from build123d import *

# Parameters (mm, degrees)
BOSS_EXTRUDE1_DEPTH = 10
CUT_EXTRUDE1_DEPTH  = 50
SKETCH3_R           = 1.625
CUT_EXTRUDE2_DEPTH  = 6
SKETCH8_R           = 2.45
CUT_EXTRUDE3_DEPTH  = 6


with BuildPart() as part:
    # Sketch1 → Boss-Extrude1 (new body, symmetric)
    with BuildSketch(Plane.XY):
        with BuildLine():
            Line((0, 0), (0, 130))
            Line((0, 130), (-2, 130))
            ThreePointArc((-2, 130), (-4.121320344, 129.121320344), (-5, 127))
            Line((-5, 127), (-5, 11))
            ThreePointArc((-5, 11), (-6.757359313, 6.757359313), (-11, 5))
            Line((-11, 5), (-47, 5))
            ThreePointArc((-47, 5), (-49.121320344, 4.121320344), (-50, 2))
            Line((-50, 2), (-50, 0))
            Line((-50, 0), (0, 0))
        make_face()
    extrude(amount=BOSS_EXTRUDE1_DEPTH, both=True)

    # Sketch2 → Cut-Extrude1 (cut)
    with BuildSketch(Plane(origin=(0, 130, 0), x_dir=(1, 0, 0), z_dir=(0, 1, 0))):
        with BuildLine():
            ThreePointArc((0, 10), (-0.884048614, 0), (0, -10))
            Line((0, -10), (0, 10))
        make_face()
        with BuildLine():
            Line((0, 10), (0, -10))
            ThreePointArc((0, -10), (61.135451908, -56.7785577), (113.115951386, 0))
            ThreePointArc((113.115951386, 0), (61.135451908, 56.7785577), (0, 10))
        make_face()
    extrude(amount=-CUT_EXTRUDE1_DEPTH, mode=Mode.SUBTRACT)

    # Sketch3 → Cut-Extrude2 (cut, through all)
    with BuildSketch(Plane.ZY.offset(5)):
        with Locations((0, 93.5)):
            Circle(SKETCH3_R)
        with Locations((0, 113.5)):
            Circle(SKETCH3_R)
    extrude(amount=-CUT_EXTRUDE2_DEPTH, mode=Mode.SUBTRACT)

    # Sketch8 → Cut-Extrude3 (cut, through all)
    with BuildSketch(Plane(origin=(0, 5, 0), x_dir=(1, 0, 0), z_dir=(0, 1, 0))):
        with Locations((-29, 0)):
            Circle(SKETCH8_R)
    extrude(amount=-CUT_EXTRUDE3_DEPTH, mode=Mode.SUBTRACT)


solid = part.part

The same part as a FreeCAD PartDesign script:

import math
import FreeCAD as App
import Part
import Sketcher
Q = App.Units.Quantity

doc = App.newDocument("Part")
body = doc.addObject("PartDesign::Body", "Body")

sketch1 = body.newObject("Sketcher::SketchObject", "Sketch")
sketch1.AttachmentSupport = (doc.getObject("XY_Plane"), [""])
sketch1.MapMode = "FlatFace"
sketch1.addGeometry([
    Part.LineSegment(App.Vector(0, 0, 0), App.Vector(0, 130, 0)),
    Part.LineSegment(App.Vector(0, 130, 0), App.Vector(-2, 130, 0)),
    Part.ArcOfCircle(Part.Circle(App.Vector(-2, 127, 0), App.Vector(0, 0, 1), 3), math.radians(90), math.radians(180)),
    Part.LineSegment(App.Vector(-5, 127, 0), App.Vector(-5, 11, 0)),
    Part.ArcOfCircle(Part.Circle(App.Vector(-11, 11, 0), App.Vector(0, 0, 1), 6), math.radians(-90), math.radians(0)),
    Part.LineSegment(App.Vector(-11, 5, 0), App.Vector(-47, 5, 0)),
    Part.ArcOfCircle(Part.Circle(App.Vector(-47, 2, 0), App.Vector(0, 0, 1), 3), math.radians(90), math.radians(180)),
    Part.LineSegment(App.Vector(-50, 2, 0), App.Vector(-50, 0, 0)),
    Part.LineSegment(App.Vector(-50, 0, 0), App.Vector(0, 0, 0)),
], False)
sketch1.addConstraint([
    Sketcher.Constraint("Coincident", 0, 2, 1, 1),
    Sketcher.Constraint("Tangent", 1, 2, 2, 1),
    Sketcher.Constraint("Tangent", 2, 2, 3, 1),
    Sketcher.Constraint("Tangent", 3, 2, 4, 2),
    Sketcher.Constraint("Tangent", 4, 1, 5, 1),
    Sketcher.Constraint("Tangent", 5, 2, 6, 1),
    Sketcher.Constraint("Tangent", 6, 2, 7, 1),
    Sketcher.Constraint("Coincident", 7, 2, 8, 1),
    Sketcher.Constraint("Coincident", 8, 2, 0, 1),
    Sketcher.Constraint("Vertical", 0),
    Sketcher.Constraint("Horizontal", 1),
    Sketcher.Constraint("Vertical", 3),
    Sketcher.Constraint("Horizontal", 5),
    Sketcher.Constraint("Vertical", 7),
    Sketcher.Constraint("Horizontal", 8),
    Sketcher.Constraint("Coincident", 8, 2, -1, 1),
    Sketcher.Constraint("Equal", 2, 6),
    Sketcher.Constraint("Equal", 1, 7),
    Sketcher.Constraint("Radius", 2, Q("3 mm")),
    Sketcher.Constraint("Radius", 4, Q("6 mm")),
    Sketcher.Constraint("DistanceX", 1, 2, 1, 1, Q("2 mm")),
    Sketcher.Constraint("DistanceX", 5, 2, 5, 1, Q("36 mm")),
    Sketcher.Constraint("DistanceY", 0, 1, 0, 2, Q("130 mm")),
])
pad1 = body.newObject("PartDesign::Pad", "Pad")
pad1.Profile = sketch1
pad1.Length = 20
pad1.Midplane = True

sketch2 = body.newObject("Sketcher::SketchObject", "Sketch001")
sketch2.AttachmentSupport = (doc.getObject("XZ_Plane"), [""])
sketch2.MapMode = "FlatFace"
sketch2.AttachmentOffset = App.Placement(App.Vector(0, 0, -130), App.Rotation())
sketch2.addGeometry([
    Part.ArcOfCircle(Part.Circle(App.Vector(56.115951, 0, 0), App.Vector(0, 0, 1), 57), math.radians(169.895817), math.radians(190.104183)),
    Part.ArcOfCircle(Part.Circle(App.Vector(56.115951, 0, 0), App.Vector(0, 0, 1), 57), math.radians(-169.895817), math.radians(169.895817)),
], False)
sketch2.addConstraint([
    Sketcher.Constraint("Tangent", 0, 1, 1, 2),
    Sketcher.Constraint("Coincident", 1, 1, 0, 2),
    Sketcher.Constraint("Symmetric", 0, 1, 1, 1, -1, 1),
    Sketcher.Constraint("PointOnObject", 0, 3, -1),
    Sketcher.Constraint("Radius", 0, Q("57 mm")),
    Sketcher.Constraint("DistanceY", -1, 1, 0, 1, Q("10 mm")),
])
pocket1 = body.newObject("PartDesign::Pocket", "Pocket")
pocket1.Profile = sketch2
pocket1.Length = 50
pocket1.Reversed = True

sketch3 = body.newObject("Sketcher::SketchObject", "Sketch002")
sketch3.AttachmentSupport = (doc.getObject("YZ_Plane"), [""])
sketch3.MapMode = "FlatFace"
sketch3.AttachmentOffset = App.Placement(App.Vector(0, 0, -5), App.Rotation())
sketch3.addGeometry([
    Part.Circle(App.Vector(93.5, 0, 0), App.Vector(0, 0, 1), 1.625),
    Part.Circle(App.Vector(113.5, 0, 0), App.Vector(0, 0, 1), 1.625),
], False)
sketch3.addConstraint([
    Sketcher.Constraint("Equal", 0, 1),
    Sketcher.Constraint("PointOnObject", 0, 3, -1),
    Sketcher.Constraint("PointOnObject", 1, 3, -1),
    Sketcher.Constraint("Diameter", 0, Q("3.25 mm")),
    Sketcher.Constraint("DistanceX", 0, 3, 1, 3, Q("20 mm")),
    Sketcher.Constraint("DistanceX", -1, 1, 0, 3, Q("93.5 mm")),
])
pocket2 = body.newObject("PartDesign::Pocket", "Pocket001")
pocket2.Profile = sketch3
pocket2.Type = "ThroughAll"
pocket2.Reversed = True

sketch4 = body.newObject("Sketcher::SketchObject", "Sketch003")
sketch4.AttachmentSupport = (doc.getObject("XZ_Plane"), [""])
sketch4.MapMode = "FlatFace"
sketch4.AttachmentOffset = App.Placement(App.Vector(0, 0, -5), App.Rotation())
sketch4.addGeometry(Part.Circle(App.Vector(-29, 0, 0), App.Vector(0, 0, 1), 2.45), False)
sketch4.addConstraint([
    Sketcher.Constraint("PointOnObject", 0, 3, -1),
    Sketcher.Constraint("Diameter", 0, Q("4.9 mm")),
    Sketcher.Constraint("DistanceX", 0, 3, -1, 1, Q("29 mm")),
])
pocket3 = body.newObject("PartDesign::Pocket", "Pocket002")
pocket3.Profile = sketch4
pocket3.Type = "ThroughAll"
pocket3.Reversed = True

doc.recompute()
